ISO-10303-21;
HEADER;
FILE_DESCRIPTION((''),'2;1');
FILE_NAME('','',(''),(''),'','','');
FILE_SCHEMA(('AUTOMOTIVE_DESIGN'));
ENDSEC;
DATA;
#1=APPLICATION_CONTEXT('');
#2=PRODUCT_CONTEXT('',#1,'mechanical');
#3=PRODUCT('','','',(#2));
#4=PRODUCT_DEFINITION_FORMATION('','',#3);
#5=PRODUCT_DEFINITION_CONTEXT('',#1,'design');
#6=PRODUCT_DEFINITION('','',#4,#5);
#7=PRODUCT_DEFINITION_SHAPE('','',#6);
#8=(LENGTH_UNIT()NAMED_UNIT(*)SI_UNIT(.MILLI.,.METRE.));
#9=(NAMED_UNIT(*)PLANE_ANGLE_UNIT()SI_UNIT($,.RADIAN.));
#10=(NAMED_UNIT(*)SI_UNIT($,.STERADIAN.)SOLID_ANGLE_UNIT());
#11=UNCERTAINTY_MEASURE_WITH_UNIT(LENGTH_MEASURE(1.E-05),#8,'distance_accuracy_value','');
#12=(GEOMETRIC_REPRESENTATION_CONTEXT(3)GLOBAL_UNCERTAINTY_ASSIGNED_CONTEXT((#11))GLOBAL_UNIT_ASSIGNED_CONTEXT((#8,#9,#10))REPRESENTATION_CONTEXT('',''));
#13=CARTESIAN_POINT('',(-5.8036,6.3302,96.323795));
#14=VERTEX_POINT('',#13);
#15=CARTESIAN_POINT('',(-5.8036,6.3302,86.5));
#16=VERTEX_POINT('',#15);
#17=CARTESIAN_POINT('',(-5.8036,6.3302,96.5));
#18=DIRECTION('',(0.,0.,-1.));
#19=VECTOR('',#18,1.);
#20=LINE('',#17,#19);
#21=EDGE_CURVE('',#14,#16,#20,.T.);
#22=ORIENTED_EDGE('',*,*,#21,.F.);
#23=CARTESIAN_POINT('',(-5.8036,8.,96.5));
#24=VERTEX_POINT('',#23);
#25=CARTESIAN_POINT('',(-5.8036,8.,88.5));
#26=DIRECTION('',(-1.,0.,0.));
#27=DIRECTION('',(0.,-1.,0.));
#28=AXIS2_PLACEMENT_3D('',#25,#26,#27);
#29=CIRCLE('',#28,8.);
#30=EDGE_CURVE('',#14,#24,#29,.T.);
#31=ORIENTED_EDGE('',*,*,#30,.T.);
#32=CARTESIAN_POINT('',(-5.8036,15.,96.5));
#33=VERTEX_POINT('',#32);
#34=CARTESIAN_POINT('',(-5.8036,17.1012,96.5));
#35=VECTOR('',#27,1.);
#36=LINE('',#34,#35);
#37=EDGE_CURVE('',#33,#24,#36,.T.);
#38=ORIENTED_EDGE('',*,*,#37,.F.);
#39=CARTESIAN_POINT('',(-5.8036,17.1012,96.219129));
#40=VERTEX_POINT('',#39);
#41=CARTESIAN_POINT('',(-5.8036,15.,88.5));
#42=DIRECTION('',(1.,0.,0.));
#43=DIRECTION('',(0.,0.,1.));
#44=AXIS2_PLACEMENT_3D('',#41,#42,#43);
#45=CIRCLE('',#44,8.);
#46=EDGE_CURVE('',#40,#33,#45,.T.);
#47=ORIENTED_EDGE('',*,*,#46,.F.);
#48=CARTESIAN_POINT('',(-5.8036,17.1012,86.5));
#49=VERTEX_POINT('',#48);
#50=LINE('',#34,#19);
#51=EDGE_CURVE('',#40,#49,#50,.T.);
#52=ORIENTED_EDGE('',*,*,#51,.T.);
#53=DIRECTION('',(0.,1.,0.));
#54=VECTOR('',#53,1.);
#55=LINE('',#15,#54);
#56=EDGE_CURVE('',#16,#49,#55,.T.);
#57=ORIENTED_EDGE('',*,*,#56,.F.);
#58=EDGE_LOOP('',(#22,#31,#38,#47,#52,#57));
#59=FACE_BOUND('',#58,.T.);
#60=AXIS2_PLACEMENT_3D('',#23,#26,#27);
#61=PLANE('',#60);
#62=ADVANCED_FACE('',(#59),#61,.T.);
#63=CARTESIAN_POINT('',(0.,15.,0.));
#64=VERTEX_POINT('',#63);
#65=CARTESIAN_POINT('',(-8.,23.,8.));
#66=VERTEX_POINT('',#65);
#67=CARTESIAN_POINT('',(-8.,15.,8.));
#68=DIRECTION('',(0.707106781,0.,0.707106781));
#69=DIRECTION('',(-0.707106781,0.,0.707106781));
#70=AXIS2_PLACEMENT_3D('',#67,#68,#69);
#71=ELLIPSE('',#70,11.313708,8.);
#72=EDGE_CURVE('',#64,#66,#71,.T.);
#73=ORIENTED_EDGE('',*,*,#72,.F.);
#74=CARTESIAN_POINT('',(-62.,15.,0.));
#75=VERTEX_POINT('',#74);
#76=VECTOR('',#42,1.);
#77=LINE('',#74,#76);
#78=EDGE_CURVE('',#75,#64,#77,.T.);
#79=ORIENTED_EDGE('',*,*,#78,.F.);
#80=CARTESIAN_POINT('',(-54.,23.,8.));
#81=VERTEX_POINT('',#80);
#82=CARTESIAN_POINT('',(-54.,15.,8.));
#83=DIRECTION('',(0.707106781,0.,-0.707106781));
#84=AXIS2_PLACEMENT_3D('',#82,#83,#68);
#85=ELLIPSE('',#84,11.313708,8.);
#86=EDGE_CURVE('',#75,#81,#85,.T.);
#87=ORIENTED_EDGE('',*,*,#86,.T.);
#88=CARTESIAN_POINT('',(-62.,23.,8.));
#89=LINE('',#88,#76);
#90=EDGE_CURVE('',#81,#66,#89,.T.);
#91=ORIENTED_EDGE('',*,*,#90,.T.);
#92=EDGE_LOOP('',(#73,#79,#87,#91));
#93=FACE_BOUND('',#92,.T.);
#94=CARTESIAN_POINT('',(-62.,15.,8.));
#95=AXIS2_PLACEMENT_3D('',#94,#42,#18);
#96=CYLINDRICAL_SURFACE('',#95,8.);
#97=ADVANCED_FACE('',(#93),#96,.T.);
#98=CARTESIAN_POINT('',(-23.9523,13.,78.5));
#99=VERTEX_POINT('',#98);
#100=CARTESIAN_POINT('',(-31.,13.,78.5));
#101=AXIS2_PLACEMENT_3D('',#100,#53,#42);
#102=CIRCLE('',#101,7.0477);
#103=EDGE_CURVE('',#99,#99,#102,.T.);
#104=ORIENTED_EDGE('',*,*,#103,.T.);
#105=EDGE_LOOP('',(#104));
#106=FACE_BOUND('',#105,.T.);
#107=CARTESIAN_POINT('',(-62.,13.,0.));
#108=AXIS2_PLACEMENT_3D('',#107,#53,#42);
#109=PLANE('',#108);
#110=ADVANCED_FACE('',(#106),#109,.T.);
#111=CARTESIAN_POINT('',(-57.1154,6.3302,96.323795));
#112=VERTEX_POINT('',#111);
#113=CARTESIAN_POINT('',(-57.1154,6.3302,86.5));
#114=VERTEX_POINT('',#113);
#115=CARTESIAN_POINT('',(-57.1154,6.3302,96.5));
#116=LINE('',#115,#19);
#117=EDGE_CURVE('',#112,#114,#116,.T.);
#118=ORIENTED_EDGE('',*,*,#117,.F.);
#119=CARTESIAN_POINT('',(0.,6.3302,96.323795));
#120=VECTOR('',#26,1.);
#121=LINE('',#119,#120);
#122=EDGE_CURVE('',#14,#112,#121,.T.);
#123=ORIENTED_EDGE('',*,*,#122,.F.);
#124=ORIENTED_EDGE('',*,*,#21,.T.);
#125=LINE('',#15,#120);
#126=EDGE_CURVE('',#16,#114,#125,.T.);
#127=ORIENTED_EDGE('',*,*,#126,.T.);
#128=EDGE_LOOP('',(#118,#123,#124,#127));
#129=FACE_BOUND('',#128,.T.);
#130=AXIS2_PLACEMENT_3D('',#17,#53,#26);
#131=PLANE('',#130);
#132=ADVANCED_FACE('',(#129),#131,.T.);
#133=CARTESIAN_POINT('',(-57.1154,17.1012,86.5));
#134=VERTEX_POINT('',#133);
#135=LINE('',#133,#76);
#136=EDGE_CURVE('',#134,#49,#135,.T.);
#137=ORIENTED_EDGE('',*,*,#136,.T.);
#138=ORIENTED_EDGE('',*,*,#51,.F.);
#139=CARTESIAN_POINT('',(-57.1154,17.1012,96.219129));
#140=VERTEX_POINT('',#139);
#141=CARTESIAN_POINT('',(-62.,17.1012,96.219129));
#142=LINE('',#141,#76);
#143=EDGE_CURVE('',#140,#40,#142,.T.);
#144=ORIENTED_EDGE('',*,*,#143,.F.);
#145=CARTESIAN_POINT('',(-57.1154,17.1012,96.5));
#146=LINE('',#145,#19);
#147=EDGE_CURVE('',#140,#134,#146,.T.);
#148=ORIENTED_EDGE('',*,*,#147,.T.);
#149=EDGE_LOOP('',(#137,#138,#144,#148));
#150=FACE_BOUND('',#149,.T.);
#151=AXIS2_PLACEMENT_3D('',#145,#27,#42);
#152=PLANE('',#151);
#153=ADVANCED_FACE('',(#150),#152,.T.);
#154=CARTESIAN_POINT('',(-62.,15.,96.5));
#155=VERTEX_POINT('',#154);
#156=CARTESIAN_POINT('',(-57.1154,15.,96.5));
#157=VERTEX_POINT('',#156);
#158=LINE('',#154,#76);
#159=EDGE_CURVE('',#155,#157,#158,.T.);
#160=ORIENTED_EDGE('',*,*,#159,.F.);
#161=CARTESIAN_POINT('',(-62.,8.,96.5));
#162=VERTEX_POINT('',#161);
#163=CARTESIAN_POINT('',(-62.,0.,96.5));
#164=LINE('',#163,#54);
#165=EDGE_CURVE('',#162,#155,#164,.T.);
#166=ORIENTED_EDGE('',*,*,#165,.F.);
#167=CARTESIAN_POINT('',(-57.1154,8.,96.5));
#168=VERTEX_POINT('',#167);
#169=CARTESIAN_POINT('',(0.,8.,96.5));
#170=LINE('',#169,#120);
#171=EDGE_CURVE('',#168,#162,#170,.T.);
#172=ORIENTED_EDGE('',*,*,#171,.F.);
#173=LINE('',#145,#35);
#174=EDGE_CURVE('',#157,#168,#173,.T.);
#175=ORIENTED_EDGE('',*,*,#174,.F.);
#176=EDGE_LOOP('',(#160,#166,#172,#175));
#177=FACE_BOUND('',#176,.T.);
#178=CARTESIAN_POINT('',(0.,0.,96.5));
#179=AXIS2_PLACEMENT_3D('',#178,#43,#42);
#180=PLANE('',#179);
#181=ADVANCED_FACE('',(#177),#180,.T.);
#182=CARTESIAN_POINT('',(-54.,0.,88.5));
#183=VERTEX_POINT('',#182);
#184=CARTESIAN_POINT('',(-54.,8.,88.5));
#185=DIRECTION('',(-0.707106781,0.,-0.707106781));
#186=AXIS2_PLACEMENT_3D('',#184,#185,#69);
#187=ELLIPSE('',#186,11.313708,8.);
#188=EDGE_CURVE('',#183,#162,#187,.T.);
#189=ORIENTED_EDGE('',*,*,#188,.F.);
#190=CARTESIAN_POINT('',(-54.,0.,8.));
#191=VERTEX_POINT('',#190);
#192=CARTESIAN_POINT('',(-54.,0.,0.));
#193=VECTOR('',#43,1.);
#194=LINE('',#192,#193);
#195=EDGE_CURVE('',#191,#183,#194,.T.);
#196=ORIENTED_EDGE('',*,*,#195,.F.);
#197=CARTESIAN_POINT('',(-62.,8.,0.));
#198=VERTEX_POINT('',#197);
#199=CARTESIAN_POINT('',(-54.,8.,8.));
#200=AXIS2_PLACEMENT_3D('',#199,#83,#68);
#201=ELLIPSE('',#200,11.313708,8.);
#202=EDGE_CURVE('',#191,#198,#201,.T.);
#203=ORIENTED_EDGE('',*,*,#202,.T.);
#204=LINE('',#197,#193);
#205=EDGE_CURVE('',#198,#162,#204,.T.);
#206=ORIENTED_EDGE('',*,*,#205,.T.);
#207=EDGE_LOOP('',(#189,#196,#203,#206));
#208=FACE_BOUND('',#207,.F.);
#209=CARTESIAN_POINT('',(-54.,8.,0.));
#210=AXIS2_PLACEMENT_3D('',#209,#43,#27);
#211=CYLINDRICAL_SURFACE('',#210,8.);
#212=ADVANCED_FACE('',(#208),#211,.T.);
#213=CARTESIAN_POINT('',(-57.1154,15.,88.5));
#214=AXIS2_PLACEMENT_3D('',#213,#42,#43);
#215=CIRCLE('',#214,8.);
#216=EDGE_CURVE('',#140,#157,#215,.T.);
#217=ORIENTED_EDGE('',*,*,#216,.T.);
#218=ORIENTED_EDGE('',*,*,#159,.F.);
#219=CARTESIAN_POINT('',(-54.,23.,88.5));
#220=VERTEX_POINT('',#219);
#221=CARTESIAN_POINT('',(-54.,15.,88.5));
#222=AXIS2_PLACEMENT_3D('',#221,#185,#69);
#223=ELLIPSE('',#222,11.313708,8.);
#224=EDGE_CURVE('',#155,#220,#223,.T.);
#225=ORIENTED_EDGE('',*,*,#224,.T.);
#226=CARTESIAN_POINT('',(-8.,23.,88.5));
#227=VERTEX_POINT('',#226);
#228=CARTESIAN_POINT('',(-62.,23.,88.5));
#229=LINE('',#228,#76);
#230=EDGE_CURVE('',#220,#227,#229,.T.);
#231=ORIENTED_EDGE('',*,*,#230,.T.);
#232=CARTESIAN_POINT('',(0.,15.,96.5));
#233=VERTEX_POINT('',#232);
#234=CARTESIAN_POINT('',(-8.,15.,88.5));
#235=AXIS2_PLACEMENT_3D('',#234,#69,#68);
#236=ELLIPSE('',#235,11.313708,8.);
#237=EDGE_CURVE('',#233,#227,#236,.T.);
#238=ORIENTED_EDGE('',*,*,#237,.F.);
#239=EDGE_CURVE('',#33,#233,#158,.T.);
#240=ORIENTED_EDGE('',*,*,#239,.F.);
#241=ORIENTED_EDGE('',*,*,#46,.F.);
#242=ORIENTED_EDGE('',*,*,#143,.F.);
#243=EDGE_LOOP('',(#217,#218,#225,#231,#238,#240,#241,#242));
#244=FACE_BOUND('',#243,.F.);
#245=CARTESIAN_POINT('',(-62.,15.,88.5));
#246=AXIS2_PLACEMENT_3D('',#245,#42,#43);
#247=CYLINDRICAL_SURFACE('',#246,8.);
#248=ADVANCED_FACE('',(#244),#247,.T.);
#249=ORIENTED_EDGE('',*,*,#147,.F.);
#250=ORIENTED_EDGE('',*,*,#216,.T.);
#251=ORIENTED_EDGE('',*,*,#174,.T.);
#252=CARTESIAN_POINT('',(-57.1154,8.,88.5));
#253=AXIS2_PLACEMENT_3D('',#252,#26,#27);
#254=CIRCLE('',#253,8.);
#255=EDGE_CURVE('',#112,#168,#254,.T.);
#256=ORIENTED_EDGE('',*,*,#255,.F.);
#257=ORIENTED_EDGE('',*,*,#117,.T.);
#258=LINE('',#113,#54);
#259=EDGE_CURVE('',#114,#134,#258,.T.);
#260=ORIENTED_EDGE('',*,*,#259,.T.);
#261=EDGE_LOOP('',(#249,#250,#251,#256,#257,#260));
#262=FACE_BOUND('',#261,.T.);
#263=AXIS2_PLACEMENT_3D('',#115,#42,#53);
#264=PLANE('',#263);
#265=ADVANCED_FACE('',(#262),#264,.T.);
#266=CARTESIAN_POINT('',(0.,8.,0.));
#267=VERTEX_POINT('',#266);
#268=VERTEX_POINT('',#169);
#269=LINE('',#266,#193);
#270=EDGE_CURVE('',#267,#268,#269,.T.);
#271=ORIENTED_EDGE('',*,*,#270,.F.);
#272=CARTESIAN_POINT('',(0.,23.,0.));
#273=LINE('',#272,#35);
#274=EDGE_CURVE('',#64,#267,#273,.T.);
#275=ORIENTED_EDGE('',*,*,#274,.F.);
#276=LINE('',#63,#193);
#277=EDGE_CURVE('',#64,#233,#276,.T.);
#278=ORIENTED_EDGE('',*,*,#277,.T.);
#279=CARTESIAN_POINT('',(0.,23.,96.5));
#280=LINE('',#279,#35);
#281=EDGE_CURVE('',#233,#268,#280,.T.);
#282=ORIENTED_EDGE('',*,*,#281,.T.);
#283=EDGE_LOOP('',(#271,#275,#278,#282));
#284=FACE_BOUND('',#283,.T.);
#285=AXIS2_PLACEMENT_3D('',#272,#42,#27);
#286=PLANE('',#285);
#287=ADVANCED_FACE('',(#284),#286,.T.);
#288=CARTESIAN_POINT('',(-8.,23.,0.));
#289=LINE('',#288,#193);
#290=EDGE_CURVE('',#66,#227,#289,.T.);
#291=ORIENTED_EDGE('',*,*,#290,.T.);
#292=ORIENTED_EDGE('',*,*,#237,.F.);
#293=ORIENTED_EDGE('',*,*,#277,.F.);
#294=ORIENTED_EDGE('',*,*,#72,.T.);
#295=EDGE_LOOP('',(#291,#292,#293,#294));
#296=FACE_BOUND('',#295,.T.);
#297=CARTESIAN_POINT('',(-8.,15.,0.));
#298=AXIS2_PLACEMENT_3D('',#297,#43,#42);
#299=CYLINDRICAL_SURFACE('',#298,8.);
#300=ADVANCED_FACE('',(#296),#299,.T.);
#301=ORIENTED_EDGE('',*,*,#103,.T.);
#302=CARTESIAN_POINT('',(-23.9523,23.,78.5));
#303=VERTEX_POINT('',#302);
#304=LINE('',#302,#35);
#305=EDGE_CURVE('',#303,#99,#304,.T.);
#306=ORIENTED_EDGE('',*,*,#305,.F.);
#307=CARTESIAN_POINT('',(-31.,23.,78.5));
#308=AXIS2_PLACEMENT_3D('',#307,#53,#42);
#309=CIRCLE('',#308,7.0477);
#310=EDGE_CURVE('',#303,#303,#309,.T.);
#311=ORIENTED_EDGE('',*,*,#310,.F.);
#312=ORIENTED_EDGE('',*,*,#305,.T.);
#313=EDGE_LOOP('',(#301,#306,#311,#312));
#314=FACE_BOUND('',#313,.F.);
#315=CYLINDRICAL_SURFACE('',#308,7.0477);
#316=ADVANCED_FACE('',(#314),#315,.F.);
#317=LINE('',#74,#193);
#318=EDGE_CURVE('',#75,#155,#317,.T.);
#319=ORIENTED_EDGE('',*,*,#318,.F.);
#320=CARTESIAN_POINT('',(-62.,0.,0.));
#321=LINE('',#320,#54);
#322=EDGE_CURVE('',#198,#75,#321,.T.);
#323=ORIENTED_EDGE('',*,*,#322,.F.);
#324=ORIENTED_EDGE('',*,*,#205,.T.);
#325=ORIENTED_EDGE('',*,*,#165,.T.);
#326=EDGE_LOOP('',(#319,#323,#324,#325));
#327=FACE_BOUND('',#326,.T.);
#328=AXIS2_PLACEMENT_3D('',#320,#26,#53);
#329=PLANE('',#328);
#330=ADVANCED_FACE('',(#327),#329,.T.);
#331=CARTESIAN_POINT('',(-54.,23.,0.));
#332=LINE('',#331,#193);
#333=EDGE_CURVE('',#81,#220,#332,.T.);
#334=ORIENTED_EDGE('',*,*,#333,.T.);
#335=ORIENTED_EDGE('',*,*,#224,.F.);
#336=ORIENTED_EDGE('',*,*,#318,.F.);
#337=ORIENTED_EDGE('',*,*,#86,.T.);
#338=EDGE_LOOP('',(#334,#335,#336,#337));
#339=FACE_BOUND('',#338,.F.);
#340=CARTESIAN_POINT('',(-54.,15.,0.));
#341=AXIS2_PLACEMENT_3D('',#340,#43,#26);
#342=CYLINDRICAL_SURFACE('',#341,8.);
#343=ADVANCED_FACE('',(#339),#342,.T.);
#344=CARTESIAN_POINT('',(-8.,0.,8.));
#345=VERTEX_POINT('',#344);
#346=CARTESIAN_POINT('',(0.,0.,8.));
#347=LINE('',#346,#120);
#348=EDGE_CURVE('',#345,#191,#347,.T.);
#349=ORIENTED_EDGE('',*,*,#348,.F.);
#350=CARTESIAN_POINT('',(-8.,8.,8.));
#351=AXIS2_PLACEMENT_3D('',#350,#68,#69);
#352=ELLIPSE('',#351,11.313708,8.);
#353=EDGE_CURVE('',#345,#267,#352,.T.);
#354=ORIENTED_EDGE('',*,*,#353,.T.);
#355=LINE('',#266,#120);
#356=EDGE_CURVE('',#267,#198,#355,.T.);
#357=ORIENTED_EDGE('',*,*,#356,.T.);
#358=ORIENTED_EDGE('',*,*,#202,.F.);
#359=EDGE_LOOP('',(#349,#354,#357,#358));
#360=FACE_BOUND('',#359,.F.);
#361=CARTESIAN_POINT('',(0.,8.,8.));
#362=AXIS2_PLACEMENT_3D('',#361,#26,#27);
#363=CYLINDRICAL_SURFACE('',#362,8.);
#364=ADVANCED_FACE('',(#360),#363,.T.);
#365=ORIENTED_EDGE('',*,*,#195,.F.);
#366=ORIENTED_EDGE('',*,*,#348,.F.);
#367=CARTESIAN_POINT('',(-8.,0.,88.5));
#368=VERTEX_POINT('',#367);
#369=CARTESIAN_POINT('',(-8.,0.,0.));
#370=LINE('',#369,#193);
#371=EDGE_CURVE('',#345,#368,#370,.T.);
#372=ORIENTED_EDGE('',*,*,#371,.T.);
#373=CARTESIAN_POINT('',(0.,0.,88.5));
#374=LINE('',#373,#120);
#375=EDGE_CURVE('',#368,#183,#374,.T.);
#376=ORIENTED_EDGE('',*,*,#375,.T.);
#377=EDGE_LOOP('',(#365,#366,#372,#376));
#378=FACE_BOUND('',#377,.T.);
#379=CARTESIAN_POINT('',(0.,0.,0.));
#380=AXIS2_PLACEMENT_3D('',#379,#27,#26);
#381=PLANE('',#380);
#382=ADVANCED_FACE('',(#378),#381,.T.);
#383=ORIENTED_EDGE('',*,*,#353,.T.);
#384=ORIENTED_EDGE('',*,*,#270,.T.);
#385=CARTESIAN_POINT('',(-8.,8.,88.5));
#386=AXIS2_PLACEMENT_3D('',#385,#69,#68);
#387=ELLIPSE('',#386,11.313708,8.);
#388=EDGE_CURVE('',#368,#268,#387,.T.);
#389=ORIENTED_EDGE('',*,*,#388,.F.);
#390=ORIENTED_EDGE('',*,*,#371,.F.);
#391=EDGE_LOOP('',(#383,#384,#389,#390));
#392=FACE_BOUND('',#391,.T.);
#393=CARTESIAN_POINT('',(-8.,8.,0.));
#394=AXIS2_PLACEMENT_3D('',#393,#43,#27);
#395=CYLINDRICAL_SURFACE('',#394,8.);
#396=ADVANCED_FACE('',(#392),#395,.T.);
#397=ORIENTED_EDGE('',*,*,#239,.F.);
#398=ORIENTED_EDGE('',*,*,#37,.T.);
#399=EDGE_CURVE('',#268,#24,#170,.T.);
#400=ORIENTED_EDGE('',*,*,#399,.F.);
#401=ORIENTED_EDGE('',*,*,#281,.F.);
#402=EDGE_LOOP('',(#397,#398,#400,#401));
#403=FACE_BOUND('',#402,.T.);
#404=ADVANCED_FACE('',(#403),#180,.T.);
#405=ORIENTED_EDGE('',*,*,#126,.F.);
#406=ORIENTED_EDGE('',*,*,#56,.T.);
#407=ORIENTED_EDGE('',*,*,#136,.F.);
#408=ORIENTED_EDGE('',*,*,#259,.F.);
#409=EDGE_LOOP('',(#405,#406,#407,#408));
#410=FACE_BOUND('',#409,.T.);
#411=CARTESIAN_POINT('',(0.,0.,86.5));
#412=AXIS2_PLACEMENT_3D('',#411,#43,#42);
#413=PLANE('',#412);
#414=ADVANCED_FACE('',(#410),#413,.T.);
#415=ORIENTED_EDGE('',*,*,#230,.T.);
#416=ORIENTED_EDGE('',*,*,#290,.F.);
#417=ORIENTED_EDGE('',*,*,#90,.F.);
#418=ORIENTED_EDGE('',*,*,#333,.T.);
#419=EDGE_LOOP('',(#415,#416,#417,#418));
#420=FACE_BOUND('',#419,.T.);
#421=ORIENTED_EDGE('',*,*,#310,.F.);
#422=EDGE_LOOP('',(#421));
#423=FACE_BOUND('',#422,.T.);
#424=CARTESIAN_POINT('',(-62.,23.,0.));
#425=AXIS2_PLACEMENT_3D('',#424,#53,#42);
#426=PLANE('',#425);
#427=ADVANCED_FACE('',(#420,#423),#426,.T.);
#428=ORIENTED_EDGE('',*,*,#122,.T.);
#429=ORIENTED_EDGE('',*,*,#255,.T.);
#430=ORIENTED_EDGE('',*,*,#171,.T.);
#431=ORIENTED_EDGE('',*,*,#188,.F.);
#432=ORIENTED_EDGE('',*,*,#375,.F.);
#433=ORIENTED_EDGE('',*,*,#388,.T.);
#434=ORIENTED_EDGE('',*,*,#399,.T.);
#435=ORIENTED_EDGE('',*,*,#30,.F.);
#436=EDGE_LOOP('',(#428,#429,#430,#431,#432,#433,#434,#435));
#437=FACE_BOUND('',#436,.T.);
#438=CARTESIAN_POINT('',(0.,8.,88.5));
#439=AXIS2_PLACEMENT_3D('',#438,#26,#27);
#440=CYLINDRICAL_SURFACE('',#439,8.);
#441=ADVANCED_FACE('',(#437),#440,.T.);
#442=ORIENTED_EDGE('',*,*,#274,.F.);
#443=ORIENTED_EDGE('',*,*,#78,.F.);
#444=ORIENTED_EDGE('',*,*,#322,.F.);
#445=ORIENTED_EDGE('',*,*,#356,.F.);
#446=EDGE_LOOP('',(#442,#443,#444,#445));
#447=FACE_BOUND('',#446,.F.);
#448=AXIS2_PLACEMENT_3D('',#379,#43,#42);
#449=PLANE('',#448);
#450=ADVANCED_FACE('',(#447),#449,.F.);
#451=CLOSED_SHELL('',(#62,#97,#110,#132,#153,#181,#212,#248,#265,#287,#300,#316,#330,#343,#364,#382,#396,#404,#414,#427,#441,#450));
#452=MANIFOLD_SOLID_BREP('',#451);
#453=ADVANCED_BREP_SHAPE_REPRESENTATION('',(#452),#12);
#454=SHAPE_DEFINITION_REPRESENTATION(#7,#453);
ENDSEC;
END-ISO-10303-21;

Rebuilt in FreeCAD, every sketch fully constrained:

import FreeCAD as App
import Part
import Sketcher

V = App.Vector


def edges_at(feature, points):
    """Names of the edges that pass closest to the given points."""
    edges = feature.Shape.Edges
    near = lambda p: min(range(len(edges)), key=lambda i: edges[i].distToShape(Part.Vertex(*p))[0])
    return sorted({f"Edge{near(p) + 1}" for p in points})


def add_polygon(sketch, points):
    """Adds a closed chain of lines whose ends are joined by coincident constraints."""
    first, n = sketch.GeometryCount, len(points)
    for a, b in zip(points, points[1:] + points[:1]):
        sketch.addGeometry(Part.LineSegment(App.Vector(*a, 0), App.Vector(*b, 0)), False)
    for i in range(n):
        sketch.addConstraint(Sketcher.Constraint("Coincident", first + i, 2, first + (i + 1) % n, 1))

doc = App.newDocument("Part")
params = doc.addObject("Spreadsheet::Sheet", "Params")
for row, (alias, value) in enumerate([
    ("sketch1_width", "62 mm"),
    ("sketch1_height", "23 mm"),
    ("pad1_length", "96.5 mm"),
    ("pocket1_length", "10 mm"),
    ("fillet_radius", "8 mm"),
    ("pocket2_length", "10 mm"),
], start=1):
    params.set(f"A{row}", alias)
    params.set(f"B{row}", "=" + value)
    params.setAlias(f"B{row}", alias)

body = doc.addObject("PartDesign::Body", "Body")

# Sketch on XY plane
sketch1 = body.newObject("Sketcher::SketchObject", "Sketch")
sketch1.AttachmentSupport = (doc.getObject("XY_Plane"), [""])
sketch1.MapMode = "FlatFace"
add_polygon(sketch1, [(-62, 0), (0, 0), (0, 23), (-62, 23)])  # lines 0-3
sketch1.addConstraint([
    Sketcher.Constraint("Horizontal", 0),
    Sketcher.Constraint("Vertical", 1),
    Sketcher.Constraint("Horizontal", 2),
    Sketcher.Constraint("Vertical", 3),
    Sketcher.Constraint("Coincident", 0, 2, -1, 1),
    Sketcher.Constraint("DistanceX", 0, 1, 0, 2, 62.0),
    Sketcher.Constraint("DistanceY", 1, 1, 1, 2, 23.0),
])
sketch1.setExpression("Constraints[9]", "Params.sketch1_width")
sketch1.setExpression("Constraints[10]", "Params.sketch1_height")
pad1 = body.newObject("PartDesign::Pad", "Pad")
pad1.Profile = sketch1
pad1.setExpression("Length", "Params.pad1_length")

# Sketch on XZ plane
sketch2 = body.newObject("Sketcher::SketchObject", "Sketch001")
sketch2.AttachmentSupport = (doc.getObject("XZ_Plane"), [""])
sketch2.MapMode = "FlatFace"
sketch2.AttachmentOffset = App.Placement(V(0, 0, -23), App.Rotation())
sketch2.addGeometry(Part.Circle(V(-31, 78, 0), V(0, 0, 1), 7), False)
sketch2.addConstraint([
    Sketcher.Constraint("DistanceX", 0, 3, -1, 1, 31.0),
    Sketcher.Constraint("Diameter", 0, 14.0954),
    Sketcher.Constraint("DistanceY", -1, 1, 0, 3, 78.5),
])
pocket1 = body.newObject("PartDesign::Pocket", "Pocket")
pocket1.Profile = sketch2
pocket1.setExpression("Length", "Params.pocket1_length")
pocket1.Reversed = True
doc.recompute()

fillet = body.newObject("PartDesign::Fillet", "Fillet")
fillet.Base = (pocket1, edges_at(pocket1, [
    (0, 23, 48.25),
    (0, 0, 48.25),
    (-62, 23, 48.25),
    (-62, 0, 48.25),
    (-31, 0, 96.5),
    (-31, 23, 96.5),
    (-31, 23, 0),
    (-31, 0, 0),
]))
fillet.setExpression("Radius", "Params.fillet_radius")

# Sketch on XY plane
sketch3 = body.newObject("Sketcher::SketchObject", "Sketch002")
sketch3.AttachmentSupport = (doc.getObject("XY_Plane"), [""])
sketch3.MapMode = "FlatFace"
sketch3.AttachmentOffset = App.Placement(V(0, 0, 96.5), App.Rotation())
add_polygon(sketch3, [(-6, 6), (-6, 17), (-57, 17), (-57, 6)])  # lines 0-3
sketch3.addConstraint([
    Sketcher.Constraint("Vertical", 0),
    Sketcher.Constraint("Horizontal", 1),
    Sketcher.Constraint("Vertical", 2),
    Sketcher.Constraint("Horizontal", 3),
    Sketcher.Constraint("DistanceY", 0, 1, 0, 2, 10.771),
    Sketcher.Constraint("DistanceX", 1, 2, 1, 1, 51.3118),
    Sketcher.Constraint("DistanceX", 0, 2, -1, 1, 5.8036),
    Sketcher.Constraint("DistanceY", -1, 1, 0, 2, 17.1012),
])
pocket2 = body.newObject("PartDesign::Pocket", "Pocket001")
pocket2.Profile = sketch3
pocket2.setExpression("Length", "Params.pocket2_length")

doc.recompute()
